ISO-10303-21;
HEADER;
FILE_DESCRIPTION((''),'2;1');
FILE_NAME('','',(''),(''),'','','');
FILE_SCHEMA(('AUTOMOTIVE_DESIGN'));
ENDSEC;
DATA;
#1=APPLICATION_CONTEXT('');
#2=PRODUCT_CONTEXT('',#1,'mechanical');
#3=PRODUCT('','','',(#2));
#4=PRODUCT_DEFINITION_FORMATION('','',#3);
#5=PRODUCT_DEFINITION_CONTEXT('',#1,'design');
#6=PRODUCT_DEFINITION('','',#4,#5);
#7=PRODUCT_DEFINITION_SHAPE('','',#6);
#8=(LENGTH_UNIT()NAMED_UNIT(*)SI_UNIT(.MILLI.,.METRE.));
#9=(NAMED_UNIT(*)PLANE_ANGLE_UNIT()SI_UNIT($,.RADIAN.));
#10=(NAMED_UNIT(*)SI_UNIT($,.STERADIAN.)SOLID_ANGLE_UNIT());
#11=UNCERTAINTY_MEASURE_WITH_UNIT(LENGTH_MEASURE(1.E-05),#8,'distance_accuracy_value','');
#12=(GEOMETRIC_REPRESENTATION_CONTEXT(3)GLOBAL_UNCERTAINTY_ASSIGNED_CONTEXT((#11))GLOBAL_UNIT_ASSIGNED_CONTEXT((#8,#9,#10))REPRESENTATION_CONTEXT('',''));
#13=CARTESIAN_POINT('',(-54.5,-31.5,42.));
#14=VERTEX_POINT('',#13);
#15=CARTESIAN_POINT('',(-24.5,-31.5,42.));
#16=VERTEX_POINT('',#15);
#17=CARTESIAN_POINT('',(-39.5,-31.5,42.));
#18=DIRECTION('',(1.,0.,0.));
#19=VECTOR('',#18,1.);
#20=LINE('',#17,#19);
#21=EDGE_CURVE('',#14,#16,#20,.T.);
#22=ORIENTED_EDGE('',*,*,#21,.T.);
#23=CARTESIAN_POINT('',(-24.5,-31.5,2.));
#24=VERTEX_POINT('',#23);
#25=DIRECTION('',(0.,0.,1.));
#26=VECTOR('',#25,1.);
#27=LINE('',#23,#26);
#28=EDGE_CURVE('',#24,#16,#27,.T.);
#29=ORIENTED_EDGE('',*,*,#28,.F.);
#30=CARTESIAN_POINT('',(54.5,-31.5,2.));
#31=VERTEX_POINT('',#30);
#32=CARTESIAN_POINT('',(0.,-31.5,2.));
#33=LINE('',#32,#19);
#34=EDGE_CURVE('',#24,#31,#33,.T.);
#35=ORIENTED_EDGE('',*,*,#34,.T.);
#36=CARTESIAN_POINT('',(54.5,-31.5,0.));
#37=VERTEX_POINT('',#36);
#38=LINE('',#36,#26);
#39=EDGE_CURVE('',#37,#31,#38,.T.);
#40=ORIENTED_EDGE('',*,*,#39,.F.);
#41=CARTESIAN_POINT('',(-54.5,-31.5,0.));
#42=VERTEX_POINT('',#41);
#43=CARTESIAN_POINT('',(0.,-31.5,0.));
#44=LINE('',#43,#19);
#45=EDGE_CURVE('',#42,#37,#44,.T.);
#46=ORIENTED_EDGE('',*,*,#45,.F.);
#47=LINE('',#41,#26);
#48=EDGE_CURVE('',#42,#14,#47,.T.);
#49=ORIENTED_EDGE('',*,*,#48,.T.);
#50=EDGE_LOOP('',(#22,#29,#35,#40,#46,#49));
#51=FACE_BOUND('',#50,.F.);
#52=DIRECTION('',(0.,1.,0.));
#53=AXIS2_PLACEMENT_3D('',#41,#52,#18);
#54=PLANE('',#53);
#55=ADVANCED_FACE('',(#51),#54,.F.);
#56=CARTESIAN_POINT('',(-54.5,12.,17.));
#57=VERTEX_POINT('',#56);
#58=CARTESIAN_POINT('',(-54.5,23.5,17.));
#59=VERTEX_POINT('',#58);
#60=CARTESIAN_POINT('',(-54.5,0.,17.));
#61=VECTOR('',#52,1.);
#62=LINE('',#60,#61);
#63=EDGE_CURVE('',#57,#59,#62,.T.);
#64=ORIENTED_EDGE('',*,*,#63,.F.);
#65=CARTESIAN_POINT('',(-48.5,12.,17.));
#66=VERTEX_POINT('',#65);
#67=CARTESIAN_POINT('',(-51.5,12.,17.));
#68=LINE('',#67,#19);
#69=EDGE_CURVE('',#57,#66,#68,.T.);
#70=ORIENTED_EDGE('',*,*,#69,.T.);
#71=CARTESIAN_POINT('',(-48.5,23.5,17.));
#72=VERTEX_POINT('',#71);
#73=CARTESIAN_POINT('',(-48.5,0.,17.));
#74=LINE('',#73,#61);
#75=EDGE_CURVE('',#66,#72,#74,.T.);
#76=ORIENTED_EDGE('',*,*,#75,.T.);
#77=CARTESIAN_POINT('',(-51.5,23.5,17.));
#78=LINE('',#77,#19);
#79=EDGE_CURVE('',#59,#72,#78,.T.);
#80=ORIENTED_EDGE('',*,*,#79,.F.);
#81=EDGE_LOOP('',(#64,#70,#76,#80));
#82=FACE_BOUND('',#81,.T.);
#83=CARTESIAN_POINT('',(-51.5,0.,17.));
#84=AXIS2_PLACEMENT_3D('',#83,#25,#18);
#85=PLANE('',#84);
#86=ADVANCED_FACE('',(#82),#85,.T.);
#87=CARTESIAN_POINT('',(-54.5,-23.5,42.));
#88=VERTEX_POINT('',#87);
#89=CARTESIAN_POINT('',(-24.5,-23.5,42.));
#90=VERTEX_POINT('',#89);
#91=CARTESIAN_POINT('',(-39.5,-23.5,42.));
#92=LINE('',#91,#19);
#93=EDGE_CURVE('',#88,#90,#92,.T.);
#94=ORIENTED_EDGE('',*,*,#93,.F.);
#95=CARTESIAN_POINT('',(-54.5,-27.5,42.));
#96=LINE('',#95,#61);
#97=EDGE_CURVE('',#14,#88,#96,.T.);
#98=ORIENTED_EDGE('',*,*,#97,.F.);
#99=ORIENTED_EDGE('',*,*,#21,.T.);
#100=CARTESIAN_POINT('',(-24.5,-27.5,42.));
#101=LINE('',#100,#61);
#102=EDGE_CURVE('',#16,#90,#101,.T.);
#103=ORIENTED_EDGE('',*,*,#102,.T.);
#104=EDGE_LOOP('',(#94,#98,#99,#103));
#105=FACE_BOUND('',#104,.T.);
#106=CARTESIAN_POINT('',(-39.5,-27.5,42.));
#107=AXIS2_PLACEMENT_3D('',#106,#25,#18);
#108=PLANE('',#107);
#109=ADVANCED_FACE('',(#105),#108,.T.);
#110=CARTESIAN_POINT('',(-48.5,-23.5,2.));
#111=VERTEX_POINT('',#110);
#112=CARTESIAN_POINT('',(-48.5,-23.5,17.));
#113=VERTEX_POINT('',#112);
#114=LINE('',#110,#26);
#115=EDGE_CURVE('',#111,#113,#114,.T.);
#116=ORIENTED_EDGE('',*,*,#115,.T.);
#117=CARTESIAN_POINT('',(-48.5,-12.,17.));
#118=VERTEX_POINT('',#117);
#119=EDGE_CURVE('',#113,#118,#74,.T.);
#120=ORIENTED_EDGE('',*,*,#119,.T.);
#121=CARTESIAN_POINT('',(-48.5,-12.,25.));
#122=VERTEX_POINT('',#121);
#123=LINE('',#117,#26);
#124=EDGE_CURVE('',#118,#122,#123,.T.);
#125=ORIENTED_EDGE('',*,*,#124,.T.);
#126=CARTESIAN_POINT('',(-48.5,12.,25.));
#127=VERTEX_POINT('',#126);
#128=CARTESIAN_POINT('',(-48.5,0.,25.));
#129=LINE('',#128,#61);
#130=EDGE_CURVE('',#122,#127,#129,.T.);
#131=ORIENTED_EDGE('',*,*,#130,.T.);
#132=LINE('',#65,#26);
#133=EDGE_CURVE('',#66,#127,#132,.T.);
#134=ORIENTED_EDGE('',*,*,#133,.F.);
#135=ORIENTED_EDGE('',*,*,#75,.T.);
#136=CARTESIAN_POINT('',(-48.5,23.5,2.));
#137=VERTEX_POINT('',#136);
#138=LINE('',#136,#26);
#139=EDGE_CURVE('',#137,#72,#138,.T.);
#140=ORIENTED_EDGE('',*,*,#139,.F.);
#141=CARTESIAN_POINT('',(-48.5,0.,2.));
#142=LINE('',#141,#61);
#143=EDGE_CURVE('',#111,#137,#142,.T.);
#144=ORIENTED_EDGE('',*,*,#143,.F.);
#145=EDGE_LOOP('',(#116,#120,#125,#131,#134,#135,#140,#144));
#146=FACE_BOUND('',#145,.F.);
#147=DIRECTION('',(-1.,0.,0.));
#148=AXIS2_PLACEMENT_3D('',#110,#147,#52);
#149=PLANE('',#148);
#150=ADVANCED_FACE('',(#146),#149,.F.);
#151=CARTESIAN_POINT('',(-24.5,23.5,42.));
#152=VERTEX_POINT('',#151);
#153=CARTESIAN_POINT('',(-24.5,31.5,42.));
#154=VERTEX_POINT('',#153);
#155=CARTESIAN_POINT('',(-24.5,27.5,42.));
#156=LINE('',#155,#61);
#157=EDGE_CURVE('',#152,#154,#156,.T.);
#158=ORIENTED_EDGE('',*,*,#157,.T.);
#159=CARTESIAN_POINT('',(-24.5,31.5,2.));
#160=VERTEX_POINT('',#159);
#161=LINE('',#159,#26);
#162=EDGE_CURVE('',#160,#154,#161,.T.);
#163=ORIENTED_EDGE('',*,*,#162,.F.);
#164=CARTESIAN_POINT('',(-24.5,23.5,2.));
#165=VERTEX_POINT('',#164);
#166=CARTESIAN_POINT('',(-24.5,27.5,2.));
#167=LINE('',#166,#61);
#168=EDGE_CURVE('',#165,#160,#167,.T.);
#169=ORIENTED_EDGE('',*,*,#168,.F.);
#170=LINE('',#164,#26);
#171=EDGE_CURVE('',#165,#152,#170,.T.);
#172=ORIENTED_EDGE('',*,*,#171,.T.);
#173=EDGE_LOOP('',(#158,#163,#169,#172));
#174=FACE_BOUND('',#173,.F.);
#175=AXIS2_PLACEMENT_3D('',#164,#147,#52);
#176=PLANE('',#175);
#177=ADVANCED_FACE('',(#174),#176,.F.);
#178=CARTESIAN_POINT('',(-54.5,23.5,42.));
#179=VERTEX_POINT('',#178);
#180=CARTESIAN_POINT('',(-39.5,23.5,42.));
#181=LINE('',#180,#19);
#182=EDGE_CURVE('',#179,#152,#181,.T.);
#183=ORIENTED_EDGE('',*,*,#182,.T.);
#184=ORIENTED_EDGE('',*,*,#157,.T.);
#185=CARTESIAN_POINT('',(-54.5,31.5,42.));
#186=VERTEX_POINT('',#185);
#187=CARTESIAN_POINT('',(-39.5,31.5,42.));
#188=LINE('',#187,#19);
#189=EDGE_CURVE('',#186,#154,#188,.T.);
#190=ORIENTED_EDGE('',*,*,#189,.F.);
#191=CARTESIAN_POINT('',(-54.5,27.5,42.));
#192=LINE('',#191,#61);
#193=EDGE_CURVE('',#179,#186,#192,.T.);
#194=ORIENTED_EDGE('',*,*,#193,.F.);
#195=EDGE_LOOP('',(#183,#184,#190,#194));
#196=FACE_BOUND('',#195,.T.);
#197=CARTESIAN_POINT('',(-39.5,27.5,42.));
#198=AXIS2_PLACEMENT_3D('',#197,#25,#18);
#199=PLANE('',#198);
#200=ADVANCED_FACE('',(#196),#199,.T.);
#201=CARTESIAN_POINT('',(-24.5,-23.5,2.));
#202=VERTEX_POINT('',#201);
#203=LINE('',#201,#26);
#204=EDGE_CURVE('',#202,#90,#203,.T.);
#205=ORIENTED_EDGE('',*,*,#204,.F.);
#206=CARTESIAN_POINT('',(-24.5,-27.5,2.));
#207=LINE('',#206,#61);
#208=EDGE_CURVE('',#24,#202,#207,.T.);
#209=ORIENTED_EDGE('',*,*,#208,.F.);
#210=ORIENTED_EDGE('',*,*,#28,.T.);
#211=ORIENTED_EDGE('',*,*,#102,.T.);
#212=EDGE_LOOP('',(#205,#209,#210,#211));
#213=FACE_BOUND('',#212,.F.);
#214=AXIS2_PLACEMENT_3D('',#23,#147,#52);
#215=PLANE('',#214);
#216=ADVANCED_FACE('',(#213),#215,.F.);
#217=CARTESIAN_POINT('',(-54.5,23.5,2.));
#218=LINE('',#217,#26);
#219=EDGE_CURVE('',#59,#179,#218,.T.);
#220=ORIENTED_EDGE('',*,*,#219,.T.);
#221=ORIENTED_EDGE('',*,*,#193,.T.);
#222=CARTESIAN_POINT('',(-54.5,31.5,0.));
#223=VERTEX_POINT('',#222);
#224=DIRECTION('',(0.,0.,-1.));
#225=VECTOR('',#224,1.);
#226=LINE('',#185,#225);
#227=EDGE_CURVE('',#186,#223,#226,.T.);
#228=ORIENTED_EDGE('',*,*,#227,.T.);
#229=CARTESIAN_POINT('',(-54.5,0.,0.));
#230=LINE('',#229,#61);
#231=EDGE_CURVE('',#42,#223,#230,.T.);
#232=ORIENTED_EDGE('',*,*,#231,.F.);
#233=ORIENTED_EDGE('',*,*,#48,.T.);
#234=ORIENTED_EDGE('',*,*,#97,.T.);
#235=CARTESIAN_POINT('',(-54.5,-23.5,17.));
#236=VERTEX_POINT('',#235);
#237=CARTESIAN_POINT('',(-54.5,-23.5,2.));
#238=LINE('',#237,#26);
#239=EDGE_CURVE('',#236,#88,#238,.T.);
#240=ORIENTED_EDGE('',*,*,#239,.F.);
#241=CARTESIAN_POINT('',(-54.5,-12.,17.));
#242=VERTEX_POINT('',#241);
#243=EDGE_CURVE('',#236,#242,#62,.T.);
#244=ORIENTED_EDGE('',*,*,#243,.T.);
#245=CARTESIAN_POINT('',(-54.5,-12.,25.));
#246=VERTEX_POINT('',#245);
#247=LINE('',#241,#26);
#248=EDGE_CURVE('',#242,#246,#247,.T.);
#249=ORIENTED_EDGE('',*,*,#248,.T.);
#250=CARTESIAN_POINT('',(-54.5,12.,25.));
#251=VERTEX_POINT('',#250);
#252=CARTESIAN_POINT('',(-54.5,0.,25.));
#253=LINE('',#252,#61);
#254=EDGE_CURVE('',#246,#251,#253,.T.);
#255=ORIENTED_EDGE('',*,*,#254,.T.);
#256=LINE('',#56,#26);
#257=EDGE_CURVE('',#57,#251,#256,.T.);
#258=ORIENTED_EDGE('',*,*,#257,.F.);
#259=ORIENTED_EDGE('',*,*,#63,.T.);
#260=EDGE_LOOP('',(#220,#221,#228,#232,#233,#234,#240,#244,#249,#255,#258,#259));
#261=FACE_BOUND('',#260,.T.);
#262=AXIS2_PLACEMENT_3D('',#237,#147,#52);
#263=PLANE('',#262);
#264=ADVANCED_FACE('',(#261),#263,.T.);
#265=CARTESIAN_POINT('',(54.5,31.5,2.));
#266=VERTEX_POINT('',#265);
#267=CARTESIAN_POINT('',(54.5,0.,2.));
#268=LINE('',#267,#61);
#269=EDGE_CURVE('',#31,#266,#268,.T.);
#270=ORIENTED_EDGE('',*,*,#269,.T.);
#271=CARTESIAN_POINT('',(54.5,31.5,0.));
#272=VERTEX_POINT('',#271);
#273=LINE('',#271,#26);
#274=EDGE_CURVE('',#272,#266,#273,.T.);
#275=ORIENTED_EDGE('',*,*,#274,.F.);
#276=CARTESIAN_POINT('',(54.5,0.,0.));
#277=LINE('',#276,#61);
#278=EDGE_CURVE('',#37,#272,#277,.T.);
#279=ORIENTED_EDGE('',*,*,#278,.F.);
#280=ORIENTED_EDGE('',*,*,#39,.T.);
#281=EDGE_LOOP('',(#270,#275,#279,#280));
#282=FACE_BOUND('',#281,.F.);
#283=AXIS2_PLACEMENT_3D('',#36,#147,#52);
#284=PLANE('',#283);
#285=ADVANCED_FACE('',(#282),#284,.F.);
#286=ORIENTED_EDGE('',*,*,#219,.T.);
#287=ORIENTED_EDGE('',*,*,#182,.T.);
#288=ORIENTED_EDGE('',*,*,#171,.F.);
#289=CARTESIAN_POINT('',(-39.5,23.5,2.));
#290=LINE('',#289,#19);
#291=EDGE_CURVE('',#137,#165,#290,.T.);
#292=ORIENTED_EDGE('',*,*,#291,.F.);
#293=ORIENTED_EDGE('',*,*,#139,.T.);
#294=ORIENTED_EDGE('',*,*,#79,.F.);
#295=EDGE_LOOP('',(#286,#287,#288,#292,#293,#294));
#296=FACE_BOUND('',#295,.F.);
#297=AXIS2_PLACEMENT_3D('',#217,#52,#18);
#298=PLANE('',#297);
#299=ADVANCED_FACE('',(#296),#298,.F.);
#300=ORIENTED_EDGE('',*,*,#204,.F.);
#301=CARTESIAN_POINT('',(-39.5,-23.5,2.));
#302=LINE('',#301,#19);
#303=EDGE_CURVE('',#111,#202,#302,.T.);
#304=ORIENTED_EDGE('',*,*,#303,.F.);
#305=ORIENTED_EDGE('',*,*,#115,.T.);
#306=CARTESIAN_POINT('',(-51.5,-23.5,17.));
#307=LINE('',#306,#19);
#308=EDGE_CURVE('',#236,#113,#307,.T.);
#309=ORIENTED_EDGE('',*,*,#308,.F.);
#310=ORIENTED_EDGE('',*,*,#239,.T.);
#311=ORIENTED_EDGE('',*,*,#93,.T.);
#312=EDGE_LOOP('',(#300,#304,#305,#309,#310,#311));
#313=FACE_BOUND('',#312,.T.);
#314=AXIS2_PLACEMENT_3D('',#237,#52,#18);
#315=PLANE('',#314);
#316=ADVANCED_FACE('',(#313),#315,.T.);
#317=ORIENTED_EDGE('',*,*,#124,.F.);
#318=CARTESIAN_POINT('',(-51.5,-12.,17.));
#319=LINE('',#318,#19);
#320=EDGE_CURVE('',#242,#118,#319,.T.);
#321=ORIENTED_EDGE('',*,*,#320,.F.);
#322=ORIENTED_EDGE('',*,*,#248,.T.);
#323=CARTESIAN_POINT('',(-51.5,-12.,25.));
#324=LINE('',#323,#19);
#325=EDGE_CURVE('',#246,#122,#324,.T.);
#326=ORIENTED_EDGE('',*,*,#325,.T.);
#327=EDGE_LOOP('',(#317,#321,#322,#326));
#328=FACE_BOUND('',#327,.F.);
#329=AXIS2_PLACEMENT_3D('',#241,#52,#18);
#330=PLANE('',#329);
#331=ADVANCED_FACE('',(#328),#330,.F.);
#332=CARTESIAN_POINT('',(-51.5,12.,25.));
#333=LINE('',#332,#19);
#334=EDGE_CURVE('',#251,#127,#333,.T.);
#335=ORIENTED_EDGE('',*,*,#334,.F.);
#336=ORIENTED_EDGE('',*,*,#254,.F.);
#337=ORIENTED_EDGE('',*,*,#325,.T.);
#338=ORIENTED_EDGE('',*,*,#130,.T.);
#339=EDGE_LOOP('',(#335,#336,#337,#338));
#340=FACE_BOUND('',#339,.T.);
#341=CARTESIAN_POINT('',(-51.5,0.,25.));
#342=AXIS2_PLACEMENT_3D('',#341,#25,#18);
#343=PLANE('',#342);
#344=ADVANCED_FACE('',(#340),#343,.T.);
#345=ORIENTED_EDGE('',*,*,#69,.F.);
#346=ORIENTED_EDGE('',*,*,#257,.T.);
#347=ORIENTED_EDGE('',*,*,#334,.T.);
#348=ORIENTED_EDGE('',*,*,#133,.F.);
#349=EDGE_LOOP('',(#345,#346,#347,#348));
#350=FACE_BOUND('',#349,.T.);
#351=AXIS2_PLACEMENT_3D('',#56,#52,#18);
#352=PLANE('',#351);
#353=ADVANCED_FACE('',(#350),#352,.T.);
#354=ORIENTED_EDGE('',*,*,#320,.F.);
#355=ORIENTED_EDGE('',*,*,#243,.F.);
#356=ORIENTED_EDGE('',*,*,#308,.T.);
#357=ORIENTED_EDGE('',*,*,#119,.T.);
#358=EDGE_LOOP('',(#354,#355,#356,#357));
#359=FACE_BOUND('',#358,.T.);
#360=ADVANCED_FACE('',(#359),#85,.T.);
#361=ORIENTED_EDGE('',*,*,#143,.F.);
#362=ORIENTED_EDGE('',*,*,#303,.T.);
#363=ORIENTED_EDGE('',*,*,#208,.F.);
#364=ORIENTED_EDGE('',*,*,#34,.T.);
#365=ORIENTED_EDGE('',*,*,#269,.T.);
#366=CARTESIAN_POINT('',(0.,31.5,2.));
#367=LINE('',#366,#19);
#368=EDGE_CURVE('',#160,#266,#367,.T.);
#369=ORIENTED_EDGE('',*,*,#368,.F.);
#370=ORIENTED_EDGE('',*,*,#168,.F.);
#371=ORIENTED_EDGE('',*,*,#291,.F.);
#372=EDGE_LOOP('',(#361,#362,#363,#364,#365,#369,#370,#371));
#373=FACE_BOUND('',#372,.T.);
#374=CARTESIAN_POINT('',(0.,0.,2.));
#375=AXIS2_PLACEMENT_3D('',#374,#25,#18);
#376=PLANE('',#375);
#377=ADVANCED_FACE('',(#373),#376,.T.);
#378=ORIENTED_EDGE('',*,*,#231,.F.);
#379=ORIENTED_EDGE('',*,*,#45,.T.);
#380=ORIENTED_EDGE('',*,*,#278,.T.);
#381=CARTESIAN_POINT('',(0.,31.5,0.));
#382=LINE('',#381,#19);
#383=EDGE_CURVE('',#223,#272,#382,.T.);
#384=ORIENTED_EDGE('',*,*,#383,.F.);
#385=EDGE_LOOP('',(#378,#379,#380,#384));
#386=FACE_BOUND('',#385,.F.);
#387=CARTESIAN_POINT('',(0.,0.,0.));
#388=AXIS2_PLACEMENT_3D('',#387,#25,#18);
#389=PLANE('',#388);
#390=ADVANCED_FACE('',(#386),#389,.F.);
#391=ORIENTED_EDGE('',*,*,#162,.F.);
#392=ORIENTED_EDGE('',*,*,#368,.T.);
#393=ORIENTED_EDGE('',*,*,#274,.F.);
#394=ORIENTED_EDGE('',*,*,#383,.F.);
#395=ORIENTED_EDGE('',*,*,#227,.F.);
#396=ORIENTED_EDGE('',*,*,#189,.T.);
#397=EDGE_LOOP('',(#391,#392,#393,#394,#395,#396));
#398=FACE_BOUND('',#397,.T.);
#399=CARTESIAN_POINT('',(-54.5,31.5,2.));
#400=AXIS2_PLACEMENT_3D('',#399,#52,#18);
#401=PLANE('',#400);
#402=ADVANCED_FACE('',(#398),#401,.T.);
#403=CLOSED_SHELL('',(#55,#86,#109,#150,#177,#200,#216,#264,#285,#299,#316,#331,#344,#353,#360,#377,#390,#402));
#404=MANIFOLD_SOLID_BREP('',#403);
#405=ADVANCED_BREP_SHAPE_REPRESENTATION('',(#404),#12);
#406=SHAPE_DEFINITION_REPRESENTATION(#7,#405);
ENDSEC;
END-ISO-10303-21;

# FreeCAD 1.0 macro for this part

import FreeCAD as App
import Part
import Sketcher

V = App.Vector
Q = App.Units.Quantity

doc = App.newDocument("Part")
body = doc.addObject("PartDesign::Body", "Body")

sketch1 = body.newObject("Sketcher::SketchObject", "Sketch")
sketch1.AttachmentSupport = (doc.getObject("XY_Plane"), [""])
sketch1.MapMode = "FlatFace"
sketch1.addGeometry([
    Part.LineSegment(V(-54, 32, 0), V(-54, -32, 0)),
    Part.LineSegment(V(-54, -32, 0), V(54, -32, 0)),
    Part.LineSegment(V(54, -32, 0), V(54, 32, 0)),
    Part.LineSegment(V(54, 32, 0), V(-54, 32, 0)),
], False)
sketch1.addConstraint([
    Sketcher.Constraint("Coincident", 0, 2, 1, 1),
    Sketcher.Constraint("Coincident", 1, 2, 2, 1),
    Sketcher.Constraint("Coincident", 2, 2, 3, 1),
    Sketcher.Constraint("Coincident", 3, 2, 0, 1),
    Sketcher.Constraint("Vertical", 0),
    Sketcher.Constraint("Horizontal", 1),
    Sketcher.Constraint("Vertical", 2),
    Sketcher.Constraint("Horizontal", 3),
    Sketcher.Constraint("Symmetric", 0, 2, 2, 2, -1, 1),
    Sketcher.Constraint("DistanceX", 1, 1, 1, 2, Q("109 mm")),
    Sketcher.Constraint("DistanceY", 0, 2, 0, 1, Q("63 mm")),
])
pad1 = body.newObject("PartDesign::Pad", "Pad")
pad1.Profile = sketch1
pad1.Length = 2

sketch2 = body.newObject("Sketcher::SketchObject", "Sketch001")
sketch2.AttachmentSupport = (doc.getObject("XY_Plane"), [""])
sketch2.MapMode = "FlatFace"
sketch2.AttachmentOffset = App.Placement(V(0, 0, 2), App.Rotation())
sketch2.addGeometry([
    Part.LineSegment(V(-54, 32, 0), V(-54, 24, 0)),
    Part.LineSegment(V(-54, 24, 0), V(-24, 24, 0)),
    Part.LineSegment(V(-24, 24, 0), V(-24, 32, 0)),
    Part.LineSegment(V(-24, 32, 0), V(-54, 32, 0)),
    Part.LineSegment(V(-54, -24, 0), V(-54, -32, 0)),
    Part.LineSegment(V(-54, -32, 0), V(-24, -32, 0)),
    Part.LineSegment(V(-24, -32, 0), V(-24, -24, 0)),
    Part.LineSegment(V(-24, -24, 0), V(-54, -24, 0)),
], False)
sketch2.addConstraint([
    Sketcher.Constraint("Coincident", 0, 2, 1, 1),
    Sketcher.Constraint("Coincident", 1, 2, 2, 1),
    Sketcher.Constraint("Coincident", 2, 2, 3, 1),
    Sketcher.Constraint("Coincident", 3, 2, 0, 1),
    Sketcher.Constraint("Coincident", 4, 2, 5, 1),
    Sketcher.Constraint("Coincident", 5, 2, 6, 1),
    Sketcher.Constraint("Coincident", 6, 2, 7, 1),
    Sketcher.Constraint("Coincident", 7, 2, 4, 1),
    Sketcher.Constraint("Vertical", 0),
    Sketcher.Constraint("Horizontal", 1),
    Sketcher.Constraint("Vertical", 2),
    Sketcher.Constraint("Horizontal", 3),
    Sketcher.Constraint("Vertical", 4),
    Sketcher.Constraint("Horizontal", 5),
    Sketcher.Constraint("Vertical", 6),
    Sketcher.Constraint("Horizontal", 7),
    Sketcher.Constraint("Symmetric", 3, 2, 4, 2, -1),
    Sketcher.Constraint("Symmetric", 1, 2, 6, 2, -1),
    Sketcher.Constraint("DistanceX", 1, 1, 1, 2, Q("30 mm")),
    Sketcher.Constraint("DistanceY", 0, 2, 0, 1, Q("8 mm")),
    Sketcher.Constraint("DistanceY", 4, 2, 0, 2, Q("55 mm")),
    Sketcher.Constraint("DistanceX", 0, 2, -1, 1, Q("54.5 mm")),
])
pad2 = body.newObject("PartDesign::Pad", "Pad001")
pad2.Profile = sketch2
pad2.Length = 40

sketch3 = body.newObject("Sketcher::SketchObject", "Sketch002")
sketch3.AttachmentSupport = (doc.getObject("XY_Plane"), [""])
sketch3.MapMode = "FlatFace"
sketch3.AttachmentOffset = App.Placement(V(0, 0, 2), App.Rotation())
sketch3.addGeometry([
    Part.LineSegment(V(-54, 24, 0), V(-54, -24, 0)),
    Part.LineSegment(V(-54, -24, 0), V(-48, -24, 0)),
    Part.LineSegment(V(-48, -24, 0), V(-48, 24, 0)),
    Part.LineSegment(V(-48, 24, 0), V(-54, 24, 0)),
], False)
sketch3.addConstraint([
    Sketcher.Constraint("Coincident", 0, 2, 1, 1),
    Sketcher.Constraint("Coincident", 1, 2, 2, 1),
    Sketcher.Constraint("Coincident", 2, 2, 3, 1),
    Sketcher.Constraint("Coincident", 3, 2, 0, 1),
    Sketcher.Constraint("Vertical", 0),
    Sketcher.Constraint("Horizontal", 1),
    Sketcher.Constraint("Vertical", 2),
    Sketcher.Constraint("Horizontal", 3),
    Sketcher.Constraint("DistanceX", 1, 1, 1, 2, Q("6 mm")),
    Sketcher.Constraint("DistanceY", 0, 2, 0, 1, Q("47 mm")),
    Sketcher.Constraint("DistanceX", 0, 2, -1, 1, Q("54.5 mm")),
    Sketcher.Constraint("DistanceY", 0, 2, -1, 1, Q("23.5 mm")),
])
pad3 = body.newObject("PartDesign::Pad", "Pad002")
pad3.Profile = sketch3
pad3.Length = 15

sketch4 = body.newObject("Sketcher::SketchObject", "Sketch003")
sketch4.AttachmentSupport = (doc.getObject("XY_Plane"), [""])
sketch4.MapMode = "FlatFace"
sketch4.AttachmentOffset = App.Placement(V(0, 0, 17), App.Rotation())
sketch4.addGeometry([
    Part.LineSegment(V(-54, 12, 0), V(-54, -12, 0)),
    Part.LineSegment(V(-54, -12, 0), V(-48, -12, 0)),
    Part.LineSegment(V(-48, -12, 0), V(-48, 12, 0)),
    Part.LineSegment(V(-48, 12, 0), V(-54, 12, 0)),
], False)
sketch4.addConstraint([
    Sketcher.Constraint("Coincident", 0, 2, 1, 1),
    Sketcher.Constraint("Coincident", 1, 2, 2, 1),
    Sketcher.Constraint("Coincident", 2, 2, 3, 1),
    Sketcher.Constraint("Coincident", 3, 2, 0, 1),
    Sketcher.Constraint("Vertical", 0),
    Sketcher.Constraint("Horizontal", 1),
    Sketcher.Constraint("Vertical", 2),
    Sketcher.Constraint("Horizontal", 3),
    Sketcher.Constraint("DistanceX", 1, 1, 1, 2, Q("6 mm")),
    Sketcher.Constraint("DistanceY", 0, 2, 0, 1, Q("24 mm")),
    Sketcher.Constraint("DistanceY", 0, 2, -1, 1, Q("12 mm")),
    Sketcher.Constraint("DistanceX", 0, 2, -1, 1, Q("54.5 mm")),
])
pad4 = body.newObject("PartDesign::Pad", "Pad003")
pad4.Profile = sketch4
pad4.Length = 8

doc.recompute()
